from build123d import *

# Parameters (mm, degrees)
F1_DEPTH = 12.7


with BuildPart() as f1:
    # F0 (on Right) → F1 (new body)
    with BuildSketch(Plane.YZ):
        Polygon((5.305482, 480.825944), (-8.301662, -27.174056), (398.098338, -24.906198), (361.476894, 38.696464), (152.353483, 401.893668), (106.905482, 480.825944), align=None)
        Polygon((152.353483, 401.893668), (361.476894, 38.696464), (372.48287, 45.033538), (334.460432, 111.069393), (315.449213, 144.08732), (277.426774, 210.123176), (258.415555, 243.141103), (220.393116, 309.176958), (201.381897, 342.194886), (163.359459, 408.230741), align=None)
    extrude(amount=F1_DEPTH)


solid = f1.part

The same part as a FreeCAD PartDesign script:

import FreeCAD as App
import Part
import Sketcher

V = App.Vector
Q = App.Units.Quantity

doc = App.newDocument("Part")
params = doc.addObject("Spreadsheet::Sheet", "Params")
for row, (alias, value) in enumerate([
    ("sketch1_width", "4 in"),
    ("sketch1_length", "3 in"),
    ("sketch1_length2", "0.5 in"),
    ("sketch1_length3", "1.5 in"),
    ("pad1_length", "0.5 in"),
], start=1):
    params.set(f"A{row}", alias)
    params.set(f"B{row}", "=" + value)
    params.setAlias(f"B{row}", alias)

body = doc.addObject("PartDesign::Body", "Body")

# Sketch on YZ plane
sketch1 = body.newObject("Sketcher::SketchObject", "Sketch")
sketch1.AttachmentSupport = (doc.getObject("YZ_Plane"), [""])
sketch1.MapMode = "FlatFace"
sketch1.addGeometry([
    Part.LineSegment(V(5, 481, 0), V(-8, -27, 0)),  # 0
    Part.LineSegment(V(-8, -27, 0), V(398, -25, 0)),  # 1
    Part.LineSegment(V(398, -25, 0), V(361, 39, 0)),  # 2
    Part.LineSegment(V(361, 39, 0), V(372, 45, 0)),  # 3
    Part.LineSegment(V(372, 45, 0), V(334, 111, 0)),  # 4
    Part.LineSegment(V(334, 111, 0), V(315, 144, 0)),  # 5
    Part.LineSegment(V(315, 144, 0), V(277, 210, 0)),  # 6
    Part.LineSegment(V(277, 210, 0), V(258, 243, 0)),  # 7
    Part.LineSegment(V(258, 243, 0), V(220, 309, 0)),  # 8
    Part.LineSegment(V(220, 309, 0), V(201, 342, 0)),  # 9
    Part.LineSegment(V(201, 342, 0), V(163, 408, 0)),  # 10
    Part.LineSegment(V(163, 408, 0), V(152, 402, 0)),  # 11
    Part.LineSegment(V(152, 402, 0), V(107, 481, 0)),  # 12
    Part.LineSegment(V(107, 481, 0), V(5, 481, 0)),  # 13
], False)
sketch1.addConstraint([
    Sketcher.Constraint("Coincident", 0, 2, 1, 1),
    Sketcher.Constraint("Coincident", 1, 2, 2, 1),
    Sketcher.Constraint("Coincident", 2, 2, 3, 1),
    Sketcher.Constraint("Coincident", 3, 2, 4, 1),
    Sketcher.Constraint("Coincident", 4, 2, 5, 1),
    Sketcher.Constraint("Coincident", 5, 2, 6, 1),
    Sketcher.Constraint("Coincident", 6, 2, 7, 1),
    Sketcher.Constraint("Coincident", 7, 2, 8, 1),
    Sketcher.Constraint("Coincident", 8, 2, 9, 1),
    Sketcher.Constraint("Coincident", 9, 2, 10, 1),
    Sketcher.Constraint("Coincident", 10, 2, 11, 1),
    Sketcher.Constraint("Coincident", 11, 2, 12, 1),
    Sketcher.Constraint("Coincident", 12, 2, 13, 1),
    Sketcher.Constraint("Coincident", 13, 2, 0, 1),
    Sketcher.Constraint("Horizontal", 13),
    Sketcher.Constraint("Perpendicular", 2, 3),
    Sketcher.Constraint("Perpendicular", 3, 4),
    Sketcher.Constraint("Parallel", 4, 5),
    Sketcher.Constraint("Parallel", 5, 6),
    Sketcher.Constraint("Parallel", 6, 7),
    Sketcher.Constraint("Parallel", 7, 8),
    Sketcher.Constraint("Parallel", 8, 9),
    Sketcher.Constraint("Parallel", 9, 10),
    Sketcher.Constraint("Perpendicular", 10, 11),
    Sketcher.Constraint("Perpendicular", 11, 12),
    Sketcher.Constraint("Equal", 4, 6),
    Sketcher.Constraint("Equal", 5, 7),
    Sketcher.Constraint("Equal", 6, 8),
    Sketcher.Constraint("Equal", 7, 9),
    Sketcher.Constraint("Equal", 8, 10),
    Sketcher.Constraint("Equal", 3, 11),
    Sketcher.Constraint("DistanceX", 13, 2, 13, 1, Q("4 in")),
    Sketcher.Constraint("Distance", 4, Q("3 in")),
    Sketcher.Constraint("DistanceX", 0, 2, 1, 2, Q("16 in")),
    Sketcher.Constraint("Distance", 3, Q("0.5 in")),
    Sketcher.Constraint("Distance", 5, Q("1.5 in")),
    Sketcher.Constraint("DistanceY", 1, 2, -1, 1, Q("24.906198 mm")),
    Sketcher.Constraint("DistanceX", 12, 2, 11, 2, Q("45.448001 mm")),
    Sketcher.Constraint("Distance", 12, Q("91.08142 mm")),
    Sketcher.Constraint("DistanceX", -1, 1, 1, 2, Q("398.098338 mm")),
    Sketcher.Constraint("DistanceX", -1, 1, 3, 2, Q("372.48287 mm")),
    Sketcher.Constraint("DistanceY", 0, 2, 1, 2, Q("2.267858 mm")),
])
sketch1.setExpression("Constraints[31]", "Params.sketch1_width")
sketch1.setExpression("Constraints[32]", "Params.sketch1_length")
sketch1.setExpression("Constraints[34]", "Params.sketch1_length2")
sketch1.setExpression("Constraints[35]", "Params.sketch1_length3")
pad1 = body.newObject("PartDesign::Pad", "Pad")
pad1.Profile = sketch1
pad1.setExpression("Length", "Params.pad1_length")

doc.recompute()
